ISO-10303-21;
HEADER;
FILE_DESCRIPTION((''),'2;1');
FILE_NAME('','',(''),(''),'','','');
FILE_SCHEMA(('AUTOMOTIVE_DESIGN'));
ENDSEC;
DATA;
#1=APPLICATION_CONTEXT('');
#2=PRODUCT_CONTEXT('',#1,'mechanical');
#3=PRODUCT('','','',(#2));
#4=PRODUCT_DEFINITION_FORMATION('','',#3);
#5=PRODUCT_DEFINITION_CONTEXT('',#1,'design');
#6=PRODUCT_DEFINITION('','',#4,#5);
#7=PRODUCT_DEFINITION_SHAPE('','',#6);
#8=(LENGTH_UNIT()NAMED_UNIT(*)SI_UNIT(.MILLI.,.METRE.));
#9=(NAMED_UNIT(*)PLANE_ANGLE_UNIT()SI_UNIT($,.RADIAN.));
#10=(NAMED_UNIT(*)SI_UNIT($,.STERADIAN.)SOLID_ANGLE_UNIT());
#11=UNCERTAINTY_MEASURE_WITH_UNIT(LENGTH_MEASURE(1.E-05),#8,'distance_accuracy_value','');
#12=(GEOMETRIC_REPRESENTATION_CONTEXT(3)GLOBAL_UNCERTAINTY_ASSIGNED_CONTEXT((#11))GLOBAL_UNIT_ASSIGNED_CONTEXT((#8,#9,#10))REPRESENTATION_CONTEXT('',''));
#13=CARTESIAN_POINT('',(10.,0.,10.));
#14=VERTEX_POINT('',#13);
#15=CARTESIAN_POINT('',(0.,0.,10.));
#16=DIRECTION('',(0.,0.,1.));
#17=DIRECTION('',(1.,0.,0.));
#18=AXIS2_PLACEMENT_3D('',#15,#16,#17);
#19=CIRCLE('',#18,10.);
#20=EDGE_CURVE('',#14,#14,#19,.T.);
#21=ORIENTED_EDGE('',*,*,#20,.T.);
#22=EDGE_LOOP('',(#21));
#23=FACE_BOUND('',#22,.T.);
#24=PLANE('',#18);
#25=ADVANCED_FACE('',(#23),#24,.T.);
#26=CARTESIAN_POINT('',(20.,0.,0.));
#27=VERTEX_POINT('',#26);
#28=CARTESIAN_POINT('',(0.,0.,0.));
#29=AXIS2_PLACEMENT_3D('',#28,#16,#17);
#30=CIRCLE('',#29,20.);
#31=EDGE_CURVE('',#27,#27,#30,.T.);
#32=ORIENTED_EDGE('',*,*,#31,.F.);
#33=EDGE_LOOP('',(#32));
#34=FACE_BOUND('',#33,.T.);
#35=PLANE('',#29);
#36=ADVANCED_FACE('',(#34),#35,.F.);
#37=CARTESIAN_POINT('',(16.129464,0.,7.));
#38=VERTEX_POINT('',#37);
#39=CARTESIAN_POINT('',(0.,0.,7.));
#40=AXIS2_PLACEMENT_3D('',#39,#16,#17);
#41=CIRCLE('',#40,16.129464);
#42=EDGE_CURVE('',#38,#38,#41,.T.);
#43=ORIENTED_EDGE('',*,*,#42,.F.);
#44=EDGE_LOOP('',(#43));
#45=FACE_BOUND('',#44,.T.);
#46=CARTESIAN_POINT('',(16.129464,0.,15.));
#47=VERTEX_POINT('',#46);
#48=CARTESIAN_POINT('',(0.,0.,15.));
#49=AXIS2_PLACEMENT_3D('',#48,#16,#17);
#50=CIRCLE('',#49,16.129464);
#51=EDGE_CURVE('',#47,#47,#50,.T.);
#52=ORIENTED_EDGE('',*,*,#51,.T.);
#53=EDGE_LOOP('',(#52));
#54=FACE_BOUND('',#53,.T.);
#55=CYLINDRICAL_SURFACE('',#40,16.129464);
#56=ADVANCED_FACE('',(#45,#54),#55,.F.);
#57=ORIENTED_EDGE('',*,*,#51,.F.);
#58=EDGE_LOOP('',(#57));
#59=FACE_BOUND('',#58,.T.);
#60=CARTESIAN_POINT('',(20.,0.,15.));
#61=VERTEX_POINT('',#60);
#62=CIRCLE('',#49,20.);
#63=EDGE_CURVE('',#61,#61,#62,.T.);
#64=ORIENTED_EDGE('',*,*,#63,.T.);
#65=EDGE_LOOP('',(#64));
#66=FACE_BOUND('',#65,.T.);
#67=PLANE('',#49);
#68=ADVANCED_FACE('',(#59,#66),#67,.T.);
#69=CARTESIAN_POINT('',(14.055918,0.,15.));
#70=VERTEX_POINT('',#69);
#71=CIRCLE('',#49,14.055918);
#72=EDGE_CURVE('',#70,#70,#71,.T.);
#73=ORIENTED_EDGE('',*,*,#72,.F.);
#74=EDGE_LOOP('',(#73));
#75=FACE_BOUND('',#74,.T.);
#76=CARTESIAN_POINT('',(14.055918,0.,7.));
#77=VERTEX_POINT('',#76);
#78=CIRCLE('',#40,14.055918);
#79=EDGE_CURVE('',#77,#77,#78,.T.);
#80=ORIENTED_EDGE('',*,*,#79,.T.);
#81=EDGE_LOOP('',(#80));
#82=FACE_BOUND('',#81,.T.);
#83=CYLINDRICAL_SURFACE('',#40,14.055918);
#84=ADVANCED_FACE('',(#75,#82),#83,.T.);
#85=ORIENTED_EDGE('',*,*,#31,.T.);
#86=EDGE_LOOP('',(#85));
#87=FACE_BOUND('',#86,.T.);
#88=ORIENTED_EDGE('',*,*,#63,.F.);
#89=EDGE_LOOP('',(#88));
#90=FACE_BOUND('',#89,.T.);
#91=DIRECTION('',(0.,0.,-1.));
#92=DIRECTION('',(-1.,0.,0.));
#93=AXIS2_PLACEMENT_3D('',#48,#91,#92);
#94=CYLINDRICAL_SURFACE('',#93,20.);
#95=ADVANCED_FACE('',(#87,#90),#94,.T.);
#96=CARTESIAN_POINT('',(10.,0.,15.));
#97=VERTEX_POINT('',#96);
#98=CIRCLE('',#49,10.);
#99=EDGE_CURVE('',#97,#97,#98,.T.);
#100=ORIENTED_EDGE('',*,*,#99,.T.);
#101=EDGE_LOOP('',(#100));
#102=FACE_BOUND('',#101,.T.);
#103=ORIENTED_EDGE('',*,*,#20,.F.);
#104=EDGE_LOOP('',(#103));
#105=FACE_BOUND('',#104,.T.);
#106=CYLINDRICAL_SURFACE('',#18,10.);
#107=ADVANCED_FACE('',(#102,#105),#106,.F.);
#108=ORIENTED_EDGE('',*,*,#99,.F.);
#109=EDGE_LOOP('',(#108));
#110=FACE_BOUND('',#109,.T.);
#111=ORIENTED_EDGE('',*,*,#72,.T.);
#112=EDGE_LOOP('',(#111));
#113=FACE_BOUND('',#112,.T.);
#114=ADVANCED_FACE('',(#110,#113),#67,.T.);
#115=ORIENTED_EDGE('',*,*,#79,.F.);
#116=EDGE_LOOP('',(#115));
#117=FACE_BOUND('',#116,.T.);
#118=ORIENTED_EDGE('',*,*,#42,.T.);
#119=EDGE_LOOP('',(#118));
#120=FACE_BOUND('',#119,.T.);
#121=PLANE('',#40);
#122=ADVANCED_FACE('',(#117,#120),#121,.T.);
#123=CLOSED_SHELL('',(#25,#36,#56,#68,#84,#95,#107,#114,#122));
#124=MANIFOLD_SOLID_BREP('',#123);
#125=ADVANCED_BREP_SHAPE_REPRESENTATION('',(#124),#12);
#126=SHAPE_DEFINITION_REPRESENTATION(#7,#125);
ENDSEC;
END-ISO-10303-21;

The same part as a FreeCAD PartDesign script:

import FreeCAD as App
import Part
import Sketcher
from FreeCAD import Vector

doc = App.newDocument("Part")
body = doc.addObject("PartDesign::Body", "Body")

# Sketch on XY plane
sketch1 = body.newObject("Sketcher::SketchObject", "Sketch")
sketch1.AttachmentSupport = (doc.getObject("XY_Plane"), [""])
sketch1.MapMode = "FlatFace"
sketch1.addGeometry(Part.Circle(Vector(0, 0, 0), Vector(0, 0, 1), 20), False)
sketch1.addConstraint(Sketcher.Constraint("Coincident", 0, 3, -1, 1))
sketch1.addConstraint(Sketcher.Constraint("Diameter", 0, 40.0))
pad1 = body.newObject("PartDesign::Pad", "Pad")
pad1.Profile = sketch1
pad1.Length = 15

# Sketch on XY plane
sketch2 = body.newObject("Sketcher::SketchObject", "Sketch001")
sketch2.AttachmentSupport = (doc.getObject("XY_Plane"), [""])
sketch2.MapMode = "FlatFace"
sketch2.AttachmentOffset = App.Placement(Vector(0, 0, 15), App.Rotation())
sketch2.addGeometry(Part.Circle(Vector(0, 0, 0), Vector(0, 0, 1), 10), False)
sketch2.addConstraint(Sketcher.Constraint("Coincident", 0, 3, -1, 1))
sketch2.addConstraint(Sketcher.Constraint("Diameter", 0, 20.0))
pocket1 = body.newObject("PartDesign::Pocket", "Pocket")
pocket1.Profile = sketch2
pocket1.Length = 5

# Sketch on XY plane
sketch3 = body.newObject("Sketcher::SketchObject", "Sketch002")
sketch3.AttachmentSupport = (doc.getObject("XY_Plane"), [""])
sketch3.MapMode = "FlatFace"
sketch3.AttachmentOffset = App.Placement(Vector(0, 0, 15), App.Rotation())
sketch3.addGeometry(Part.Circle(Vector(0, 0, 0), Vector(0, 0, 1), 16), False)
sketch3.addGeometry(Part.Circle(Vector(0, 0, 0), Vector(0, 0, 1), 14), False)
sketch3.addConstraint(Sketcher.Constraint("Coincident", 0, 3, -1, 1))
sketch3.addConstraint(Sketcher.Constraint("Coincident", 1, 3, -1, 1))
sketch3.addConstraint(Sketcher.Constraint("Diameter", 0, 32.258928))
sketch3.addConstraint(Sketcher.Constraint("Diameter", 1, 28.111837))
pocket2 = body.newObject("PartDesign::Pocket", "Pocket001")
pocket2.Profile = sketch3
pocket2.Length = 8

doc.recompute()
